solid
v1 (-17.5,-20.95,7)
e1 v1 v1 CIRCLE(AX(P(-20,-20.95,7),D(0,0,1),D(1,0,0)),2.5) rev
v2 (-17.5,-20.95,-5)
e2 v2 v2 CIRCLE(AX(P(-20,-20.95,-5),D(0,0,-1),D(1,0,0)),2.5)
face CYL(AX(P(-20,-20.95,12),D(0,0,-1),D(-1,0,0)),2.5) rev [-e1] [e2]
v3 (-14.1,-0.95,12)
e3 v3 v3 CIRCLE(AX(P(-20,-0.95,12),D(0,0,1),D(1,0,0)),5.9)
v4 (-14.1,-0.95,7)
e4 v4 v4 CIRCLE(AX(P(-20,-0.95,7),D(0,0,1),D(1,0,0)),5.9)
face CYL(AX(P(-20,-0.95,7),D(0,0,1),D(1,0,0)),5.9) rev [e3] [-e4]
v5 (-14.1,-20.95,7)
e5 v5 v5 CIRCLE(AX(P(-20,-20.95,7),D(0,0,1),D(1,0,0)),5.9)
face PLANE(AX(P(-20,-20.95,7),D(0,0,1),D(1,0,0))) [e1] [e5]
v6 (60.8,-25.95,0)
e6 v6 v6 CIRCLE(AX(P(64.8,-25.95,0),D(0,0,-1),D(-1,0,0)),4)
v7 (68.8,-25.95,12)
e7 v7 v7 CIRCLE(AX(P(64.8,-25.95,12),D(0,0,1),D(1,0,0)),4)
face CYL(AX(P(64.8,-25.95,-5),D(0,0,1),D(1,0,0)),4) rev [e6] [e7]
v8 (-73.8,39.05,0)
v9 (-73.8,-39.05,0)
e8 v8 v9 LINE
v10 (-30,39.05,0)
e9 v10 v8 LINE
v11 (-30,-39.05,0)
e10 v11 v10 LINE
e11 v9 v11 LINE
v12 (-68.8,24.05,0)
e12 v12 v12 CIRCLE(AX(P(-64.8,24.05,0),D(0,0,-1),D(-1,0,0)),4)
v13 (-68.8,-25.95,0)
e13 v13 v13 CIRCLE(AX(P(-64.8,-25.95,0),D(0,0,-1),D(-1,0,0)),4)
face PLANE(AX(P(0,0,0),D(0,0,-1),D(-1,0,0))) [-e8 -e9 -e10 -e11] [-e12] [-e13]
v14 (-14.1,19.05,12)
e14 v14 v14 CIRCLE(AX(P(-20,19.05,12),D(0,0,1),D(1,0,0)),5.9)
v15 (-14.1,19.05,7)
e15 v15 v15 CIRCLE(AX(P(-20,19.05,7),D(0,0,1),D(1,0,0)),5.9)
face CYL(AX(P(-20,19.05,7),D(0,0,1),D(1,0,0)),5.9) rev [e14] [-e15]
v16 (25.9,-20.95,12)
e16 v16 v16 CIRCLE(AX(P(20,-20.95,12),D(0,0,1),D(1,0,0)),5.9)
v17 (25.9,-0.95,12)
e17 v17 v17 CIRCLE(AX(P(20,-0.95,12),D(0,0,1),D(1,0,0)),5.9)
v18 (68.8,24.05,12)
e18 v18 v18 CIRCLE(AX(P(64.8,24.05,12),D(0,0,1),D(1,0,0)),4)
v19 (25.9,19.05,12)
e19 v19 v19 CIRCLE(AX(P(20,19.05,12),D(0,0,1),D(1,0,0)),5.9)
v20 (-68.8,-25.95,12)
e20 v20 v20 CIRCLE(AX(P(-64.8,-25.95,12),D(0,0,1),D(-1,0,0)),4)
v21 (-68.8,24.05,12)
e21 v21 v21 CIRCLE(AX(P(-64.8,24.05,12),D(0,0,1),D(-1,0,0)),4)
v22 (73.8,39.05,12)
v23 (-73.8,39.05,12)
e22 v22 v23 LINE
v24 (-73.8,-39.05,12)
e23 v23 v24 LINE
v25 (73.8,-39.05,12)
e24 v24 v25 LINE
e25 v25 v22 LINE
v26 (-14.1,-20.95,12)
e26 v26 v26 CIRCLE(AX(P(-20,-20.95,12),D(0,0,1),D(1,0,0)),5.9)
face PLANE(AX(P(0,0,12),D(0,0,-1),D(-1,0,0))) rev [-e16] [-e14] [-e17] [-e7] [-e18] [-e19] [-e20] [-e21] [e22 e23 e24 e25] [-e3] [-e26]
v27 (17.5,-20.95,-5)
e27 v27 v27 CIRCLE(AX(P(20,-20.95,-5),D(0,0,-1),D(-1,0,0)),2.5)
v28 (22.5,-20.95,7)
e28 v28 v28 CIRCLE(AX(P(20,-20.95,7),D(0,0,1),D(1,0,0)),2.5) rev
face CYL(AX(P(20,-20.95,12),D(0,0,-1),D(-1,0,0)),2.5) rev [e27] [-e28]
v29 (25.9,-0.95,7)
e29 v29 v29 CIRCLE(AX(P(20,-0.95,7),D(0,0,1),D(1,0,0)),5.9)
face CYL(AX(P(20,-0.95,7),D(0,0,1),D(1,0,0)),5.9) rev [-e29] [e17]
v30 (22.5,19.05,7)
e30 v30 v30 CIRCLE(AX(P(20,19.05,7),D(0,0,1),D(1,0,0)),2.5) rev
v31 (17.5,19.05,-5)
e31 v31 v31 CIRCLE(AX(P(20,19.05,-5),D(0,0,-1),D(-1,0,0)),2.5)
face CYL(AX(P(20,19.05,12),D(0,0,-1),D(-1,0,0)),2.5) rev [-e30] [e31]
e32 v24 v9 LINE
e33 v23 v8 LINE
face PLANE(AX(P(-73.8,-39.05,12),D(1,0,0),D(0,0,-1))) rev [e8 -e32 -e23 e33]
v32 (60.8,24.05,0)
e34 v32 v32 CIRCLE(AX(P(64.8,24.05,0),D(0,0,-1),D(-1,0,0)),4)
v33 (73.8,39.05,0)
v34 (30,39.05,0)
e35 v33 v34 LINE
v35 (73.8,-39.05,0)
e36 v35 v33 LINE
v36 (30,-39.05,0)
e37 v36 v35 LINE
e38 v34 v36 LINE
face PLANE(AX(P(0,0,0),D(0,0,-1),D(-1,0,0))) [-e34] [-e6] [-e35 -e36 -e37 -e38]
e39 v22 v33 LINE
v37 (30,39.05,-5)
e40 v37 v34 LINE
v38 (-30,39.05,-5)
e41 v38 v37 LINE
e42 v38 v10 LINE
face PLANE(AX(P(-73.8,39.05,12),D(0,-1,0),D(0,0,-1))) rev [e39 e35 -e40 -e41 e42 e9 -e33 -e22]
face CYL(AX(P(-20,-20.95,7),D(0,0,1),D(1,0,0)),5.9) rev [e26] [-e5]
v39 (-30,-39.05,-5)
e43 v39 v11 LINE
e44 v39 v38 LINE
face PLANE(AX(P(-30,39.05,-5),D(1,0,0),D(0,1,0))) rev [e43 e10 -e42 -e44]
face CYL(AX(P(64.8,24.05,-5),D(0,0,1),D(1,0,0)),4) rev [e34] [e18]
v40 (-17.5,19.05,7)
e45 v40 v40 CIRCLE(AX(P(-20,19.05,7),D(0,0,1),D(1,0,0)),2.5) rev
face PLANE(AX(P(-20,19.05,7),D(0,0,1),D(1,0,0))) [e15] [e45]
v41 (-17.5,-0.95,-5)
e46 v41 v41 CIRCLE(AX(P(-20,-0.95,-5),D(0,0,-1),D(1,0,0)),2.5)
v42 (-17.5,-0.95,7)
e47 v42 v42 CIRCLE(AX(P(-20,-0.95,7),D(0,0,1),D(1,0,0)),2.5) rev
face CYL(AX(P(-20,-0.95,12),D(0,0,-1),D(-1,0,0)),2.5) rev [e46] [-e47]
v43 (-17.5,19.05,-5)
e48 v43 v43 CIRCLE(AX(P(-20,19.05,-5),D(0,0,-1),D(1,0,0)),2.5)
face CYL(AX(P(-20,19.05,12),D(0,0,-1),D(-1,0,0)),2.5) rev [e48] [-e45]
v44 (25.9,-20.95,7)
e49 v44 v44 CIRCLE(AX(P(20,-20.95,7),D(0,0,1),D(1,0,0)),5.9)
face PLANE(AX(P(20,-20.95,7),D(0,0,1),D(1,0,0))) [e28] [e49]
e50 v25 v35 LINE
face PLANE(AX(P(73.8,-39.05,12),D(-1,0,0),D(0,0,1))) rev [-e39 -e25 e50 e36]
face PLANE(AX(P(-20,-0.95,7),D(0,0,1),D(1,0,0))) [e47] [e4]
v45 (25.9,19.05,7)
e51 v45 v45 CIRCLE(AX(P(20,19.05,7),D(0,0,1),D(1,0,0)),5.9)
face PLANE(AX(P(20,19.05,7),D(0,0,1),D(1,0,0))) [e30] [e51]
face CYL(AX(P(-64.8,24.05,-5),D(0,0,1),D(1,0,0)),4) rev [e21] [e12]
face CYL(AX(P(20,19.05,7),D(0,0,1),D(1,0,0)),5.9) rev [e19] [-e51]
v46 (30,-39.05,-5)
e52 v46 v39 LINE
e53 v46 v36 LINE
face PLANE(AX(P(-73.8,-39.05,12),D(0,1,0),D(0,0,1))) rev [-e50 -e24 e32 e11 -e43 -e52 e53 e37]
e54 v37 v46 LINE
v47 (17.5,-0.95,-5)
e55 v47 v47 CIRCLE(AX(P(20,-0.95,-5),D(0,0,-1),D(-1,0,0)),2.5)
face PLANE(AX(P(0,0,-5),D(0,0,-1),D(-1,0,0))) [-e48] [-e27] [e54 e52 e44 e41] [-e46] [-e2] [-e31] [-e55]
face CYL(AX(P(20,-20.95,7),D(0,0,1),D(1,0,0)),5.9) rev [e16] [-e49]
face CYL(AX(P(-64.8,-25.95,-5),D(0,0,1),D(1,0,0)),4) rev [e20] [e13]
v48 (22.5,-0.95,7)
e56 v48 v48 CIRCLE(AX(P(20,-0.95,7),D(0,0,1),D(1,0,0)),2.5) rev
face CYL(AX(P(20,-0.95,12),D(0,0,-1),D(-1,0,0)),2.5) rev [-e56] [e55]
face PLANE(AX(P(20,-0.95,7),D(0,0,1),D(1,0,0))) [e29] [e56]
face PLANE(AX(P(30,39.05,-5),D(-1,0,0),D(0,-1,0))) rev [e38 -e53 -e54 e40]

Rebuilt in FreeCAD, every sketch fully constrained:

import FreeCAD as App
import Part
import Sketcher
from FreeCAD import Vector
Q = App.Units.Quantity


def add_polygon(sketch, points):
    """Adds a closed chain of lines whose ends are joined by coincident constraints."""
    first, n = sketch.GeometryCount, len(points)
    for a, b in zip(points, points[1:] + points[:1]):
        sketch.addGeometry(Part.LineSegment(App.Vector(*a, 0), App.Vector(*b, 0)), False)
    for i in range(n):
        sketch.addConstraint(Sketcher.Constraint("Coincident", first + i, 2, first + (i + 1) % n, 1))

doc = App.newDocument("Part")
body = doc.addObject("PartDesign::Body", "Body")

sketch1 = body.newObject("Sketcher::SketchObject", "Sketch")
sketch1.AttachmentSupport = (doc.getObject("XY_Plane"), [""])
sketch1.MapMode = "FlatFace"
add_polygon(sketch1, [(-73.8, 39.05), (-73.8, -39.05), (73.8, -39.05), (73.8, 39.05)])
sketch1.addConstraint(Sketcher.Constraint("Vertical", 0))
sketch1.addConstraint(Sketcher.Constraint("Horizontal", 1))
sketch1.addConstraint(Sketcher.Constraint("Vertical", 2))
sketch1.addConstraint(Sketcher.Constraint("Horizontal", 3))
sketch1.addConstraint(Sketcher.Constraint("Symmetric", 0, 2, 2, 2, -1, 1))
sketch1.addConstraint(Sketcher.Constraint("DistanceX", 1, 1, 1, 2, Q("147.6 mm")))
sketch1.addConstraint(Sketcher.Constraint("DistanceY", 0, 2, 0, 1, Q("78.1 mm")))
pad1 = body.newObject("PartDesign::Pad", "Pad")
pad1.Profile = sketch1
pad1.Length = 12

sketch2 = body.newObject("Sketcher::SketchObject", "Sketch001")
sketch2.AttachmentSupport = (doc.getObject("XY_Plane"), [""])
sketch2.MapMode = "FlatFace"
add_polygon(sketch2, [(30, 39.05), (30, -39.05), (-30, -39.05), (-30, 39.05)])
sketch2.addConstraint(Sketcher.Constraint("Vertical", 0))
sketch2.addConstraint(Sketcher.Constraint("Horizontal", 1))
sketch2.addConstraint(Sketcher.Constraint("Vertical", 2))
sketch2.addConstraint(Sketcher.Constraint("Horizontal", 3))
sketch2.addConstraint(Sketcher.Constraint("Symmetric", 0, 2, 2, 2, -1, 1))
sketch2.addConstraint(Sketcher.Constraint("DistanceX", 1, 2, 1, 1, Q("60 mm")))
sketch2.addConstraint(Sketcher.Constraint("DistanceY", 0, 2, 0, 1, Q("78.1 mm")))
pad2 = body.newObject("PartDesign::Pad", "Pad001")
pad2.Profile = sketch2
pad2.Length = 5
pad2.Reversed = True

sketch3 = body.newObject("Sketcher::SketchObject", "Sketch002")
sketch3.AttachmentSupport = (doc.getObject("XY_Plane"), [""])
sketch3.MapMode = "FlatFace"
sketch3.AttachmentOffset = App.Placement(Vector(0, 0, -5), App.Rotation())
sketch3.addGeometry(Part.Circle(Vector(20, 19.05, 0), Vector(0, 0, 1), 2.5), False)
sketch3.addGeometry(Part.Circle(Vector(20, -0.95, 0), Vector(0, 0, 1), 2.5), False)
sketch3.addGeometry(Part.Circle(Vector(20, -20.95, 0), Vector(0, 0, 1), 2.5), False)
sketch3.addGeometry(Part.Circle(Vector(-20, -20.95, 0), Vector(0, 0, 1), 2.5), False)
sketch3.addGeometry(Part.Circle(Vector(-20, -0.95, 0), Vector(0, 0, 1), 2.5), False)
sketch3.addGeometry(Part.Circle(Vector(-20, 19.05, 0), Vector(0, 0, 1), 2.5), False)
sketch3.addConstraint(Sketcher.Constraint("Equal", 0, 1))
sketch3.addConstraint(Sketcher.Constraint("Equal", 1, 2))
sketch3.addConstraint(Sketcher.Constraint("Equal", 2, 3))
sketch3.addConstraint(Sketcher.Constraint("Equal", 3, 4))
sketch3.addConstraint(Sketcher.Constraint("Equal", 4, 5))
sketch3.addConstraint(Sketcher.Constraint("Symmetric", 2, 3, 3, 3, -2))
sketch3.addConstraint(Sketcher.Constraint("Symmetric", 1, 3, 4, 3, -2))
sketch3.addConstraint(Sketcher.Constraint("Symmetric", 0, 3, 5, 3, -2))
sketch3.addConstraint(Sketcher.Constraint("Vertical", 0, 3, 1, 3))
sketch3.addConstraint(Sketcher.Constraint("Vertical", 1, 3, 2, 3))
sketch3.addConstraint(Sketcher.Constraint("Diameter", 0, Q("5 mm")))
sketch3.addConstraint(Sketcher.Constraint("DistanceX", -1, 1, 0, 3, Q("20 mm")))
sketch3.addConstraint(Sketcher.Constraint("DistanceY", 1, 3, 0, 3, Q("20 mm")))
sketch3.addConstraint(Sketcher.Constraint("DistanceY", 2, 3, 1, 3, Q("20 mm")))
sketch3.addConstraint(Sketcher.Constraint("DistanceY", -1, 1, 0, 3, Q("19.05 mm")))
pocket1 = body.newObject("PartDesign::Pocket", "Pocket")
pocket1.Profile = sketch3
pocket1.Type = "ThroughAll"
pocket1.Reversed = True

sketch4 = body.newObject("Sketcher::SketchObject", "Sketch003")
sketch4.AttachmentSupport = (doc.getObject("XY_Plane"), [""])
sketch4.MapMode = "FlatFace"
sketch4.AttachmentOffset = App.Placement(Vector(0, 0, 12), App.Rotation())
sketch4.addGeometry(Part.Circle(Vector(64.8, 24.05, 0), Vector(0, 0, 1), 4), False)
sketch4.addGeometry(Part.Circle(Vector(64.8, -25.95, 0), Vector(0, 0, 1), 4), False)
sketch4.addGeometry(Part.Circle(Vector(-64.8, -25.95, 0), Vector(0, 0, 1), 4), False)
sketch4.addGeometry(Part.Circle(Vector(-64.8, 24.05, 0), Vector(0, 0, 1), 4), False)
sketch4.addConstraint(Sketcher.Constraint("Equal", 0, 1))
sketch4.addConstraint(Sketcher.Constraint("Equal", 1, 2))
sketch4.addConstraint(Sketcher.Constraint("Equal", 2, 3))
sketch4.addConstraint(Sketcher.Constraint("Symmetric", 1, 3, 2, 3, -2))
sketch4.addConstraint(Sketcher.Constraint("Symmetric", 0, 3, 3, 3, -2))
sketch4.addConstraint(Sketcher.Constraint("Vertical", 0, 3, 1, 3))
sketch4.addConstraint(Sketcher.Constraint("Diameter", 0, Q("8 mm")))
sketch4.addConstraint(Sketcher.Constraint("DistanceY", 1, 3, 0, 3, Q("50 mm")))
sketch4.addConstraint(Sketcher.Constraint("DistanceX", -1, 1, 0, 3, Q("64.8 mm")))
sketch4.addConstraint(Sketcher.Constraint("DistanceY", -1, 1, 0, 3, Q("24.05 mm")))
pocket2 = body.newObject("PartDesign::Pocket", "Pocket001")
pocket2.Profile = sketch4
pocket2.Type = "ThroughAll"

sketch5 = body.newObject("Sketcher::SketchObject", "Sketch004")
sketch5.AttachmentSupport = (doc.getObject("XY_Plane"), [""])
sketch5.MapMode = "FlatFace"
sketch5.AttachmentOffset = App.Placement(Vector(0, 0, 12), App.Rotation())
sketch5.addGeometry(Part.Circle(Vector(-20, 19.05, 0), Vector(0, 0, 1), 5.9), False)
sketch5.addGeometry(Part.Circle(Vector(20, 19.05, 0), Vector(0, 0, 1), 5.9), False)
sketch5.addGeometry(Part.Circle(Vector(-20, -0.95, 0), Vector(0, 0, 1), 5.9), False)
sketch5.addGeometry(Part.Circle(Vector(20, -0.95, 0), Vector(0, 0, 1), 5.9), False)
sketch5.addGeometry(Part.Circle(Vector(-20, -20.95, 0), Vector(0, 0, 1), 5.9), False)
sketch5.addGeometry(Part.Circle(Vector(20, -20.95, 0), Vector(0, 0, 1), 5.9), False)
sketch5.addConstraint(Sketcher.Constraint("Equal", 0, 1))
sketch5.addConstraint(Sketcher.Constraint("Equal", 1, 2))
sketch5.addConstraint(Sketcher.Constraint("Equal", 2, 3))
sketch5.addConstraint(Sketcher.Constraint("Equal", 3, 4))
sketch5.addConstraint(Sketcher.Constraint("Equal", 4, 5))
sketch5.addConstraint(Sketcher.Constraint("Symmetric", 0, 3, 1, 3, -2))
sketch5.addConstraint(Sketcher.Constraint("Symmetric", 2, 3, 3, 3, -2))
sketch5.addConstraint(Sketcher.Constraint("Symmetric", 4, 3, 5, 3, -2))
sketch5.addConstraint(Sketcher.Constraint("Vertical", 0, 3, 2, 3))
sketch5.addConstraint(Sketcher.Constraint("Vertical", 2, 3, 4, 3))
sketch5.addConstraint(Sketcher.Constraint("Diameter", 0, Q("11.8 mm")))
sketch5.addConstraint(Sketcher.Constraint("DistanceX", 0, 3, -1, 1, Q("20 mm")))
sketch5.addConstraint(Sketcher.Constraint("DistanceY", 2, 3, 0, 3, Q("20 mm")))
sketch5.addConstraint(Sketcher.Constraint("DistanceY", 4, 3, 2, 3, Q("20 mm")))
sketch5.addConstraint(Sketcher.Constraint("DistanceY", -1, 1, 0, 3, Q("19.05 mm")))
pocket3 = body.newObject("PartDesign::Pocket", "Pocket002")
pocket3.Profile = sketch5
pocket3.Length = 5

doc.recompute()
